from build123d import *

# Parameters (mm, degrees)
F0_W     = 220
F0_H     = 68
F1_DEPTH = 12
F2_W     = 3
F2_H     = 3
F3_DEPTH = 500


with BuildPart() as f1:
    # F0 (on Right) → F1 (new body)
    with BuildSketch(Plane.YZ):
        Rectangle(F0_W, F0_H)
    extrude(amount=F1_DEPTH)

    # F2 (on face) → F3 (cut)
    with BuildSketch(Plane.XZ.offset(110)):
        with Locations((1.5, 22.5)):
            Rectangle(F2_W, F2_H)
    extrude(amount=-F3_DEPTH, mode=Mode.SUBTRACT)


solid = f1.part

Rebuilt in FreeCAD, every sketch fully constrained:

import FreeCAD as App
import Part
import Sketcher
from FreeCAD import Vector
Q = App.Units.Quantity


def add_polygon(sketch, points):
    """Adds a closed chain of lines whose ends are joined by coincident constraints."""
    first, n = sketch.GeometryCount, len(points)
    for a, b in zip(points, points[1:] + points[:1]):
        sketch.addGeometry(Part.LineSegment(App.Vector(*a, 0), App.Vector(*b, 0)), False)
    for i in range(n):
        sketch.addConstraint(Sketcher.Constraint("Coincident", first + i, 2, first + (i + 1) % n, 1))

doc = App.newDocument("Part")
body = doc.addObject("PartDesign::Body", "Body")

# Sketch on YZ plane
sketch1 = body.newObject("Sketcher::SketchObject", "Sketch")
sketch1.AttachmentSupport = (doc.getObject("YZ_Plane"), [""])
sketch1.MapMode = "FlatFace"
add_polygon(sketch1, [(-110, 34), (-110, -34), (110, -34), (110, 34)])  # lines 0-3
sketch1.addConstraint([
    Sketcher.Constraint("Vertical", 0),
    Sketcher.Constraint("Horizontal", 1),
    Sketcher.Constraint("Vertical", 2),
    Sketcher.Constraint("Horizontal", 3),
    Sketcher.Constraint("Symmetric", 0, 2, 2, 2, -1, 1),
    Sketcher.Constraint("DistanceX", 1, 1, 1, 2, Q("220 mm")),
    Sketcher.Constraint("DistanceY", 0, 2, 0, 1, Q("68 mm")),
])
pad1 = body.newObject("PartDesign::Pad", "Pad")
pad1.Profile = sketch1
pad1.Length = 12

# Sketch on XZ plane
sketch2 = body.newObject("Sketcher::SketchObject", "Sketch001")
sketch2.AttachmentSupport = (doc.getObject("XZ_Plane"), [""])
sketch2.MapMode = "FlatFace"
sketch2.AttachmentOffset = App.Placement(Vector(0, 0, 110), App.Rotation())
add_polygon(sketch2, [(0, 24), (0, 21), (3, 21), (3, 24)])  # lines 0-3
sketch2.addConstraint([
    Sketcher.Constraint("Vertical", 0),
    Sketcher.Constraint("Horizontal", 1),
    Sketcher.Constraint("Vertical", 2),
    Sketcher.Constraint("Horizontal", 3),
    Sketcher.Constraint("PointOnObject", 0, 2, -2),
    Sketcher.Constraint("Equal", 3, 0),
    Sketcher.Constraint("DistanceX", 1, 1, 1, 2, Q("3 mm")),
    Sketcher.Constraint("DistanceY", -1, 1, 0, 2, Q("21 mm")),
])
pocket1 = body.newObject("PartDesign::Pocket", "Pocket")
pocket1.Profile = sketch2
pocket1.Length = 500

doc.recompute()
